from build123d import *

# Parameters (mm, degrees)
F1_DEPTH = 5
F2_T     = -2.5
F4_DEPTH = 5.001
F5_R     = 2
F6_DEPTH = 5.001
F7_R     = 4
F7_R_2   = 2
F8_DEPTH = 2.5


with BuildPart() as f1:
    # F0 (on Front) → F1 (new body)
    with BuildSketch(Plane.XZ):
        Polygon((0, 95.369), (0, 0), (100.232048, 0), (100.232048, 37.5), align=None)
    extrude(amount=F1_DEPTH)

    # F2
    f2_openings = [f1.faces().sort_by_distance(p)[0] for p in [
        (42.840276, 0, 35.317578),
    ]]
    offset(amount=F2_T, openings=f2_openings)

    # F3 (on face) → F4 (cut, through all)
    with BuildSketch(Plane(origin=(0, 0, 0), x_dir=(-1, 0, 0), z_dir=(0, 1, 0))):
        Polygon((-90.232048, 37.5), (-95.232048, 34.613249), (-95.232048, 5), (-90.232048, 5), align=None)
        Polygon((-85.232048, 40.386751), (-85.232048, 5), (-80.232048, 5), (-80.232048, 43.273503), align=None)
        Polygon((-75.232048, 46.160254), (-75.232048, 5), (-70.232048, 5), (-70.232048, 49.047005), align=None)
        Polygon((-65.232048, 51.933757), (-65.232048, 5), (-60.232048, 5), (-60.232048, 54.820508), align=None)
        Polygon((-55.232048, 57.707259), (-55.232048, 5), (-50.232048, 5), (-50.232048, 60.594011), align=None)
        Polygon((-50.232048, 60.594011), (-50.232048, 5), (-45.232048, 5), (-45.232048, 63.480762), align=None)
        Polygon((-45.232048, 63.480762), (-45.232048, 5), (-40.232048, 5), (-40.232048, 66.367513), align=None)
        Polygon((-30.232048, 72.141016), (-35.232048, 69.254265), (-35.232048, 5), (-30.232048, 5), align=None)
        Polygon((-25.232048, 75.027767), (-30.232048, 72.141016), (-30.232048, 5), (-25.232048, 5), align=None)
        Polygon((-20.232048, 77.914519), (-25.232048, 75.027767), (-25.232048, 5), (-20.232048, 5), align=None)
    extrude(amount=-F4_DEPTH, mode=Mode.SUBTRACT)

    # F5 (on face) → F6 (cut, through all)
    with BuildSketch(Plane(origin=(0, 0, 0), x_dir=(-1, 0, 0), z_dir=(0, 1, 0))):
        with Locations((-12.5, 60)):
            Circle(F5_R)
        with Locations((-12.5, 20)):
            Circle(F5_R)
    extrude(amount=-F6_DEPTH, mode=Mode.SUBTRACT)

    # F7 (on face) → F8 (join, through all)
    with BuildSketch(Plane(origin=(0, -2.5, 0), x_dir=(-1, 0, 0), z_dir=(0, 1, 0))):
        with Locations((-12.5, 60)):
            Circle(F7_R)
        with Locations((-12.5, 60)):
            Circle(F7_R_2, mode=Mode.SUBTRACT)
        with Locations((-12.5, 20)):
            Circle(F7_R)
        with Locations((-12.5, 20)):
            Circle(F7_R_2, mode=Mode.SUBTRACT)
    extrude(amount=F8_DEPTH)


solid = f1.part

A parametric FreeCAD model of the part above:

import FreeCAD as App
import Part
import Sketcher
from FreeCAD import Vector
Q = App.Units.Quantity


def faces_at(feature, points):
    """Names of the faces that lie closest to the given points."""
    faces = feature.Shape.Faces
    near = lambda p: min(range(len(faces)), key=lambda i: faces[i].distToShape(Part.Vertex(*p))[0])
    return sorted({f"Face{near(p) + 1}" for p in points})


def add_polygon(sketch, points):
    """Adds a closed chain of lines whose ends are joined by coincident constraints."""
    first, n = sketch.GeometryCount, len(points)
    for a, b in zip(points, points[1:] + points[:1]):
        sketch.addGeometry(Part.LineSegment(App.Vector(*a, 0), App.Vector(*b, 0)), False)
    for i in range(n):
        sketch.addConstraint(Sketcher.Constraint("Coincident", first + i, 2, first + (i + 1) % n, 1))

doc = App.newDocument("Part")
body = doc.addObject("PartDesign::Body", "Body")

# Sketch on XZ plane
sketch1 = body.newObject("Sketcher::SketchObject", "Sketch")
sketch1.AttachmentSupport = (doc.getObject("XZ_Plane"), [""])
sketch1.MapMode = "FlatFace"
add_polygon(sketch1, [(0, 95), (0, 0), (100, 0), (100, 38)])  # lines 0-3
sketch1.addConstraint(Sketcher.Constraint("Vertical", 0))
sketch1.addConstraint(Sketcher.Constraint("Horizontal", 1))
sketch1.addConstraint(Sketcher.Constraint("Vertical", 2))
sketch1.addConstraint(Sketcher.Constraint("Coincident", 0, 2, -1, 1))
sketch1.addConstraint(Sketcher.Constraint("Angle", 3, Q("150 deg")))
sketch1.addConstraint(Sketcher.Constraint("DistanceY", 2, 1, 2, 2, Q("37.5 mm")))
sketch1.addConstraint(Sketcher.Constraint("DistanceY", 0, 2, 0, 1, Q("95.369 mm")))
pad1 = body.newObject("PartDesign::Pad", "Pad")
pad1.Profile = sketch1
pad1.Length = 5
doc.recompute()

thickness = body.newObject("PartDesign::Thickness", "Thickness")
thickness.Base = (pad1, faces_at(pad1, [(50.116, 0, 47.684)]))
thickness.Value = 2.5
thickness.Reversed = True
thickness.Join = "Arc"

# Sketch on XZ plane
sketch2 = body.newObject("Sketcher::SketchObject", "Sketch001")
sketch2.AttachmentSupport = (doc.getObject("XZ_Plane"), [""])
sketch2.MapMode = "FlatFace"
add_polygon(sketch2, [(90, 38), (95, 35), (95, 5), (90, 5)])  # lines 0-3
add_polygon(sketch2, [(85, 40), (85, 5), (80, 5), (80, 43)])  # lines 4-7
add_polygon(sketch2, [(75, 46), (75, 5), (70, 5), (70, 49)])  # lines 8-11
add_polygon(sketch2, [(65, 52), (65, 5), (60, 5), (60, 55)])  # lines 12-15
add_polygon(sketch2, [(55, 58), (55, 5), (40, 5), (40, 66), (50, 61)])  # lines 16-20
add_polygon(sketch2, [(35, 69), (35, 5), (20, 5), (20, 78), (25, 75)])  # lines 21-25
sketch2.addConstraint(Sketcher.Constraint("Vertical", 1))
sketch2.addConstraint(Sketcher.Constraint("Horizontal", 2))
sketch2.addConstraint(Sketcher.Constraint("Vertical", 3))
sketch2.addConstraint(Sketcher.Constraint("Vertical", 4))
sketch2.addConstraint(Sketcher.Constraint("Horizontal", 5))
sketch2.addConstraint(Sketcher.Constraint("Vertical", 6))
sketch2.addConstraint(Sketcher.Constraint("Vertical", 8))
sketch2.addConstraint(Sketcher.Constraint("Horizontal", 9))
sketch2.addConstraint(Sketcher.Constraint("Vertical", 10))
sketch2.addConstraint(Sketcher.Constraint("Vertical", 12))
sketch2.addConstraint(Sketcher.Constraint("Horizontal", 13))
sketch2.addConstraint(Sketcher.Constraint("Vertical", 14))
sketch2.addConstraint(Sketcher.Constraint("Vertical", 16))
sketch2.addConstraint(Sketcher.Constraint("Horizontal", 17))
sketch2.addConstraint(Sketcher.Constraint("Vertical", 18))
sketch2.addConstraint(Sketcher.Constraint("Vertical", 21))
sketch2.addConstraint(Sketcher.Constraint("Horizontal", 22))
sketch2.addConstraint(Sketcher.Constraint("Vertical", 23))
sketch2.addConstraint(Sketcher.Constraint("Parallel", 0, 7))
sketch2.addConstraint(Sketcher.Constraint("Parallel", 7, 11))
sketch2.addConstraint(Sketcher.Constraint("Parallel", 11, 15))
sketch2.addConstraint(Sketcher.Constraint("Parallel", 15, 19))
sketch2.addConstraint(Sketcher.Constraint("Parallel", 19, 20))
sketch2.addConstraint(Sketcher.Constraint("Parallel", 20, 24))
sketch2.addConstraint(Sketcher.Constraint("Parallel", 24, 25))
sketch2.addConstraint(Sketcher.Constraint("Horizontal", 2, 2, 4, 2))
sketch2.addConstraint(Sketcher.Constraint("Horizontal", 5, 2, 8, 2))
sketch2.addConstraint(Sketcher.Constraint("Horizontal", 9, 2, 12, 2))
sketch2.addConstraint(Sketcher.Constraint("Horizontal", 13, 2, 16, 2))
sketch2.addConstraint(Sketcher.Constraint("Horizontal", 17, 2, 21, 2))
sketch2.addConstraint(Sketcher.Constraint("Equal", 2, 5))
sketch2.addConstraint(Sketcher.Constraint("Equal", 5, 9))
sketch2.addConstraint(Sketcher.Constraint("Equal", 9, 13))
sketch2.addConstraint(Sketcher.Constraint("Equal", 17, 22))
sketch2.addConstraint(Sketcher.Constraint("Equal", 15, 20))
sketch2.addConstraint(Sketcher.Constraint("Equal", 20, 24))
sketch2.addConstraint(Sketcher.Constraint("DistanceX", 2, 2, 2, 1, Q("5 mm")))
sketch2.addConstraint(Sketcher.Constraint("DistanceX", 17, 2, 17, 1, Q("15 mm")))
sketch2.addConstraint(Sketcher.Constraint("Angle", 0, Q("-29.999997 deg")))
sketch2.addConstraint(Sketcher.Constraint("DistanceY", 3, 1, 3, 2, Q("32.5 mm")))
sketch2.addConstraint(Sketcher.Constraint("DistanceY", -1, 1, 1, 2, Q("5 mm")))
sketch2.addConstraint(Sketcher.Constraint("DistanceX", 4, 2, 2, 2, Q("5 mm")))
sketch2.addConstraint(Sketcher.Constraint("DistanceX", 8, 2, 5, 2, Q("5 mm")))
sketch2.addConstraint(Sketcher.Constraint("DistanceX", 12, 2, 9, 2, Q("5 mm")))
sketch2.addConstraint(Sketcher.Constraint("DistanceX", 16, 2, 13, 2, Q("5 mm")))
sketch2.addConstraint(Sketcher.Constraint("DistanceX", 21, 2, 17, 2, Q("5 mm")))
sketch2.addConstraint(Sketcher.Constraint("DistanceY", 4, 2, 4, 1, Q("35.386751 mm")))
sketch2.addConstraint(Sketcher.Constraint("DistanceY", 16, 2, 16, 1, Q("52.707259 mm")))
sketch2.addConstraint(Sketcher.Constraint("DistanceY", 23, 1, 23, 2, Q("72.914519 mm")))
sketch2.addConstraint(Sketcher.Constraint("DistanceY", 8, 2, 8, 1, Q("41.160254 mm")))
sketch2.addConstraint(Sketcher.Constraint("DistanceY", 12, 2, 12, 1, Q("46.933757 mm")))
sketch2.addConstraint(Sketcher.Constraint("DistanceX", -1, 1, 0, 2, Q("95.232048 mm")))
pocket1 = body.newObject("PartDesign::Pocket", "Pocket")
pocket1.Profile = sketch2
pocket1.Type = "ThroughAll"
pocket1.Reversed = True

# Sketch on XZ plane
sketch3 = body.newObject("Sketcher::SketchObject", "Sketch002")
sketch3.AttachmentSupport = (doc.getObject("XZ_Plane"), [""])
sketch3.MapMode = "FlatFace"
sketch3.addGeometry(Part.Circle(Vector(12.5, 60, 0), Vector(0, 0, 1), 2), False)
sketch3.addGeometry(Part.Circle(Vector(12.5, 20, 0), Vector(0, 0, 1), 2), False)
sketch3.addConstraint(Sketcher.Constraint("Equal", 0, 1))
sketch3.addConstraint(Sketcher.Constraint("Vertical", 0, 3, 1, 3))
sketch3.addConstraint(Sketcher.Constraint("Diameter", 0, Q("4 mm")))
sketch3.addConstraint(Sketcher.Constraint("DistanceY", -1, 1, 0, 3, Q("60 mm")))
sketch3.addConstraint(Sketcher.Constraint("DistanceY", -1, 1, 1, 3, Q("20 mm")))
sketch3.addConstraint(Sketcher.Constraint("DistanceX", -1, 1, 0, 3, Q("12.5 mm")))
pocket2 = body.newObject("PartDesign::Pocket", "Pocket001")
pocket2.Profile = sketch3
pocket2.Type = "ThroughAll"
pocket2.Reversed = True

# Sketch on XZ plane
sketch4 = body.newObject("Sketcher::SketchObject", "Sketch003")
sketch4.AttachmentSupport = (doc.getObject("XZ_Plane"), [""])
sketch4.MapMode = "FlatFace"
sketch4.AttachmentOffset = App.Placement(Vector(0, 0, 2.5), App.Rotation())
sketch4.addGeometry(Part.Circle(Vector(12.5, 60, 0), Vector(0, 0, 1), 4), False)
sketch4.addGeometry(Part.Circle(Vector(12.5, 60, 0), Vector(0, 0, 1), 2), False)
sketch4.addGeometry(Part.Circle(Vector(12.5, 20, 0), Vector(0, 0, 1), 4), False)
sketch4.addGeometry(Part.Circle(Vector(12.5, 20, 0), Vector(0, 0, 1), 2), False)
sketch4.addConstraint(Sketcher.Constraint("Coincident", 1, 3, 0, 3))
sketch4.addConstraint(Sketcher.Constraint("Coincident", 3, 3, 2, 3))
sketch4.addConstraint(Sketcher.Constraint("Equal", 0, 2))
sketch4.addConstraint(Sketcher.Constraint("Equal", 1, 3))
sketch4.addConstraint(Sketcher.Constraint("Vertical", 1, 3, 2, 3))
sketch4.addConstraint(Sketcher.Constraint("Diameter", 0, Q("8 mm")))
sketch4.addConstraint(Sketcher.Constraint("Diameter", 1, Q("4 mm")))
sketch4.addConstraint(Sketcher.Constraint("DistanceY", -1, 1, 0, 3, Q("60 mm")))
sketch4.addConstraint(Sketcher.Constraint("DistanceY", -1, 1, 2, 3, Q("20 mm")))
sketch4.addConstraint(Sketcher.Constraint("DistanceX", -1, 1, 0, 3, Q("12.5 mm")))
pad2 = body.newObject("PartDesign::Pad", "Pad001")
pad2.Profile = sketch4
pad2.Length = 2.5
pad2.Reversed = True

doc.recompute()
